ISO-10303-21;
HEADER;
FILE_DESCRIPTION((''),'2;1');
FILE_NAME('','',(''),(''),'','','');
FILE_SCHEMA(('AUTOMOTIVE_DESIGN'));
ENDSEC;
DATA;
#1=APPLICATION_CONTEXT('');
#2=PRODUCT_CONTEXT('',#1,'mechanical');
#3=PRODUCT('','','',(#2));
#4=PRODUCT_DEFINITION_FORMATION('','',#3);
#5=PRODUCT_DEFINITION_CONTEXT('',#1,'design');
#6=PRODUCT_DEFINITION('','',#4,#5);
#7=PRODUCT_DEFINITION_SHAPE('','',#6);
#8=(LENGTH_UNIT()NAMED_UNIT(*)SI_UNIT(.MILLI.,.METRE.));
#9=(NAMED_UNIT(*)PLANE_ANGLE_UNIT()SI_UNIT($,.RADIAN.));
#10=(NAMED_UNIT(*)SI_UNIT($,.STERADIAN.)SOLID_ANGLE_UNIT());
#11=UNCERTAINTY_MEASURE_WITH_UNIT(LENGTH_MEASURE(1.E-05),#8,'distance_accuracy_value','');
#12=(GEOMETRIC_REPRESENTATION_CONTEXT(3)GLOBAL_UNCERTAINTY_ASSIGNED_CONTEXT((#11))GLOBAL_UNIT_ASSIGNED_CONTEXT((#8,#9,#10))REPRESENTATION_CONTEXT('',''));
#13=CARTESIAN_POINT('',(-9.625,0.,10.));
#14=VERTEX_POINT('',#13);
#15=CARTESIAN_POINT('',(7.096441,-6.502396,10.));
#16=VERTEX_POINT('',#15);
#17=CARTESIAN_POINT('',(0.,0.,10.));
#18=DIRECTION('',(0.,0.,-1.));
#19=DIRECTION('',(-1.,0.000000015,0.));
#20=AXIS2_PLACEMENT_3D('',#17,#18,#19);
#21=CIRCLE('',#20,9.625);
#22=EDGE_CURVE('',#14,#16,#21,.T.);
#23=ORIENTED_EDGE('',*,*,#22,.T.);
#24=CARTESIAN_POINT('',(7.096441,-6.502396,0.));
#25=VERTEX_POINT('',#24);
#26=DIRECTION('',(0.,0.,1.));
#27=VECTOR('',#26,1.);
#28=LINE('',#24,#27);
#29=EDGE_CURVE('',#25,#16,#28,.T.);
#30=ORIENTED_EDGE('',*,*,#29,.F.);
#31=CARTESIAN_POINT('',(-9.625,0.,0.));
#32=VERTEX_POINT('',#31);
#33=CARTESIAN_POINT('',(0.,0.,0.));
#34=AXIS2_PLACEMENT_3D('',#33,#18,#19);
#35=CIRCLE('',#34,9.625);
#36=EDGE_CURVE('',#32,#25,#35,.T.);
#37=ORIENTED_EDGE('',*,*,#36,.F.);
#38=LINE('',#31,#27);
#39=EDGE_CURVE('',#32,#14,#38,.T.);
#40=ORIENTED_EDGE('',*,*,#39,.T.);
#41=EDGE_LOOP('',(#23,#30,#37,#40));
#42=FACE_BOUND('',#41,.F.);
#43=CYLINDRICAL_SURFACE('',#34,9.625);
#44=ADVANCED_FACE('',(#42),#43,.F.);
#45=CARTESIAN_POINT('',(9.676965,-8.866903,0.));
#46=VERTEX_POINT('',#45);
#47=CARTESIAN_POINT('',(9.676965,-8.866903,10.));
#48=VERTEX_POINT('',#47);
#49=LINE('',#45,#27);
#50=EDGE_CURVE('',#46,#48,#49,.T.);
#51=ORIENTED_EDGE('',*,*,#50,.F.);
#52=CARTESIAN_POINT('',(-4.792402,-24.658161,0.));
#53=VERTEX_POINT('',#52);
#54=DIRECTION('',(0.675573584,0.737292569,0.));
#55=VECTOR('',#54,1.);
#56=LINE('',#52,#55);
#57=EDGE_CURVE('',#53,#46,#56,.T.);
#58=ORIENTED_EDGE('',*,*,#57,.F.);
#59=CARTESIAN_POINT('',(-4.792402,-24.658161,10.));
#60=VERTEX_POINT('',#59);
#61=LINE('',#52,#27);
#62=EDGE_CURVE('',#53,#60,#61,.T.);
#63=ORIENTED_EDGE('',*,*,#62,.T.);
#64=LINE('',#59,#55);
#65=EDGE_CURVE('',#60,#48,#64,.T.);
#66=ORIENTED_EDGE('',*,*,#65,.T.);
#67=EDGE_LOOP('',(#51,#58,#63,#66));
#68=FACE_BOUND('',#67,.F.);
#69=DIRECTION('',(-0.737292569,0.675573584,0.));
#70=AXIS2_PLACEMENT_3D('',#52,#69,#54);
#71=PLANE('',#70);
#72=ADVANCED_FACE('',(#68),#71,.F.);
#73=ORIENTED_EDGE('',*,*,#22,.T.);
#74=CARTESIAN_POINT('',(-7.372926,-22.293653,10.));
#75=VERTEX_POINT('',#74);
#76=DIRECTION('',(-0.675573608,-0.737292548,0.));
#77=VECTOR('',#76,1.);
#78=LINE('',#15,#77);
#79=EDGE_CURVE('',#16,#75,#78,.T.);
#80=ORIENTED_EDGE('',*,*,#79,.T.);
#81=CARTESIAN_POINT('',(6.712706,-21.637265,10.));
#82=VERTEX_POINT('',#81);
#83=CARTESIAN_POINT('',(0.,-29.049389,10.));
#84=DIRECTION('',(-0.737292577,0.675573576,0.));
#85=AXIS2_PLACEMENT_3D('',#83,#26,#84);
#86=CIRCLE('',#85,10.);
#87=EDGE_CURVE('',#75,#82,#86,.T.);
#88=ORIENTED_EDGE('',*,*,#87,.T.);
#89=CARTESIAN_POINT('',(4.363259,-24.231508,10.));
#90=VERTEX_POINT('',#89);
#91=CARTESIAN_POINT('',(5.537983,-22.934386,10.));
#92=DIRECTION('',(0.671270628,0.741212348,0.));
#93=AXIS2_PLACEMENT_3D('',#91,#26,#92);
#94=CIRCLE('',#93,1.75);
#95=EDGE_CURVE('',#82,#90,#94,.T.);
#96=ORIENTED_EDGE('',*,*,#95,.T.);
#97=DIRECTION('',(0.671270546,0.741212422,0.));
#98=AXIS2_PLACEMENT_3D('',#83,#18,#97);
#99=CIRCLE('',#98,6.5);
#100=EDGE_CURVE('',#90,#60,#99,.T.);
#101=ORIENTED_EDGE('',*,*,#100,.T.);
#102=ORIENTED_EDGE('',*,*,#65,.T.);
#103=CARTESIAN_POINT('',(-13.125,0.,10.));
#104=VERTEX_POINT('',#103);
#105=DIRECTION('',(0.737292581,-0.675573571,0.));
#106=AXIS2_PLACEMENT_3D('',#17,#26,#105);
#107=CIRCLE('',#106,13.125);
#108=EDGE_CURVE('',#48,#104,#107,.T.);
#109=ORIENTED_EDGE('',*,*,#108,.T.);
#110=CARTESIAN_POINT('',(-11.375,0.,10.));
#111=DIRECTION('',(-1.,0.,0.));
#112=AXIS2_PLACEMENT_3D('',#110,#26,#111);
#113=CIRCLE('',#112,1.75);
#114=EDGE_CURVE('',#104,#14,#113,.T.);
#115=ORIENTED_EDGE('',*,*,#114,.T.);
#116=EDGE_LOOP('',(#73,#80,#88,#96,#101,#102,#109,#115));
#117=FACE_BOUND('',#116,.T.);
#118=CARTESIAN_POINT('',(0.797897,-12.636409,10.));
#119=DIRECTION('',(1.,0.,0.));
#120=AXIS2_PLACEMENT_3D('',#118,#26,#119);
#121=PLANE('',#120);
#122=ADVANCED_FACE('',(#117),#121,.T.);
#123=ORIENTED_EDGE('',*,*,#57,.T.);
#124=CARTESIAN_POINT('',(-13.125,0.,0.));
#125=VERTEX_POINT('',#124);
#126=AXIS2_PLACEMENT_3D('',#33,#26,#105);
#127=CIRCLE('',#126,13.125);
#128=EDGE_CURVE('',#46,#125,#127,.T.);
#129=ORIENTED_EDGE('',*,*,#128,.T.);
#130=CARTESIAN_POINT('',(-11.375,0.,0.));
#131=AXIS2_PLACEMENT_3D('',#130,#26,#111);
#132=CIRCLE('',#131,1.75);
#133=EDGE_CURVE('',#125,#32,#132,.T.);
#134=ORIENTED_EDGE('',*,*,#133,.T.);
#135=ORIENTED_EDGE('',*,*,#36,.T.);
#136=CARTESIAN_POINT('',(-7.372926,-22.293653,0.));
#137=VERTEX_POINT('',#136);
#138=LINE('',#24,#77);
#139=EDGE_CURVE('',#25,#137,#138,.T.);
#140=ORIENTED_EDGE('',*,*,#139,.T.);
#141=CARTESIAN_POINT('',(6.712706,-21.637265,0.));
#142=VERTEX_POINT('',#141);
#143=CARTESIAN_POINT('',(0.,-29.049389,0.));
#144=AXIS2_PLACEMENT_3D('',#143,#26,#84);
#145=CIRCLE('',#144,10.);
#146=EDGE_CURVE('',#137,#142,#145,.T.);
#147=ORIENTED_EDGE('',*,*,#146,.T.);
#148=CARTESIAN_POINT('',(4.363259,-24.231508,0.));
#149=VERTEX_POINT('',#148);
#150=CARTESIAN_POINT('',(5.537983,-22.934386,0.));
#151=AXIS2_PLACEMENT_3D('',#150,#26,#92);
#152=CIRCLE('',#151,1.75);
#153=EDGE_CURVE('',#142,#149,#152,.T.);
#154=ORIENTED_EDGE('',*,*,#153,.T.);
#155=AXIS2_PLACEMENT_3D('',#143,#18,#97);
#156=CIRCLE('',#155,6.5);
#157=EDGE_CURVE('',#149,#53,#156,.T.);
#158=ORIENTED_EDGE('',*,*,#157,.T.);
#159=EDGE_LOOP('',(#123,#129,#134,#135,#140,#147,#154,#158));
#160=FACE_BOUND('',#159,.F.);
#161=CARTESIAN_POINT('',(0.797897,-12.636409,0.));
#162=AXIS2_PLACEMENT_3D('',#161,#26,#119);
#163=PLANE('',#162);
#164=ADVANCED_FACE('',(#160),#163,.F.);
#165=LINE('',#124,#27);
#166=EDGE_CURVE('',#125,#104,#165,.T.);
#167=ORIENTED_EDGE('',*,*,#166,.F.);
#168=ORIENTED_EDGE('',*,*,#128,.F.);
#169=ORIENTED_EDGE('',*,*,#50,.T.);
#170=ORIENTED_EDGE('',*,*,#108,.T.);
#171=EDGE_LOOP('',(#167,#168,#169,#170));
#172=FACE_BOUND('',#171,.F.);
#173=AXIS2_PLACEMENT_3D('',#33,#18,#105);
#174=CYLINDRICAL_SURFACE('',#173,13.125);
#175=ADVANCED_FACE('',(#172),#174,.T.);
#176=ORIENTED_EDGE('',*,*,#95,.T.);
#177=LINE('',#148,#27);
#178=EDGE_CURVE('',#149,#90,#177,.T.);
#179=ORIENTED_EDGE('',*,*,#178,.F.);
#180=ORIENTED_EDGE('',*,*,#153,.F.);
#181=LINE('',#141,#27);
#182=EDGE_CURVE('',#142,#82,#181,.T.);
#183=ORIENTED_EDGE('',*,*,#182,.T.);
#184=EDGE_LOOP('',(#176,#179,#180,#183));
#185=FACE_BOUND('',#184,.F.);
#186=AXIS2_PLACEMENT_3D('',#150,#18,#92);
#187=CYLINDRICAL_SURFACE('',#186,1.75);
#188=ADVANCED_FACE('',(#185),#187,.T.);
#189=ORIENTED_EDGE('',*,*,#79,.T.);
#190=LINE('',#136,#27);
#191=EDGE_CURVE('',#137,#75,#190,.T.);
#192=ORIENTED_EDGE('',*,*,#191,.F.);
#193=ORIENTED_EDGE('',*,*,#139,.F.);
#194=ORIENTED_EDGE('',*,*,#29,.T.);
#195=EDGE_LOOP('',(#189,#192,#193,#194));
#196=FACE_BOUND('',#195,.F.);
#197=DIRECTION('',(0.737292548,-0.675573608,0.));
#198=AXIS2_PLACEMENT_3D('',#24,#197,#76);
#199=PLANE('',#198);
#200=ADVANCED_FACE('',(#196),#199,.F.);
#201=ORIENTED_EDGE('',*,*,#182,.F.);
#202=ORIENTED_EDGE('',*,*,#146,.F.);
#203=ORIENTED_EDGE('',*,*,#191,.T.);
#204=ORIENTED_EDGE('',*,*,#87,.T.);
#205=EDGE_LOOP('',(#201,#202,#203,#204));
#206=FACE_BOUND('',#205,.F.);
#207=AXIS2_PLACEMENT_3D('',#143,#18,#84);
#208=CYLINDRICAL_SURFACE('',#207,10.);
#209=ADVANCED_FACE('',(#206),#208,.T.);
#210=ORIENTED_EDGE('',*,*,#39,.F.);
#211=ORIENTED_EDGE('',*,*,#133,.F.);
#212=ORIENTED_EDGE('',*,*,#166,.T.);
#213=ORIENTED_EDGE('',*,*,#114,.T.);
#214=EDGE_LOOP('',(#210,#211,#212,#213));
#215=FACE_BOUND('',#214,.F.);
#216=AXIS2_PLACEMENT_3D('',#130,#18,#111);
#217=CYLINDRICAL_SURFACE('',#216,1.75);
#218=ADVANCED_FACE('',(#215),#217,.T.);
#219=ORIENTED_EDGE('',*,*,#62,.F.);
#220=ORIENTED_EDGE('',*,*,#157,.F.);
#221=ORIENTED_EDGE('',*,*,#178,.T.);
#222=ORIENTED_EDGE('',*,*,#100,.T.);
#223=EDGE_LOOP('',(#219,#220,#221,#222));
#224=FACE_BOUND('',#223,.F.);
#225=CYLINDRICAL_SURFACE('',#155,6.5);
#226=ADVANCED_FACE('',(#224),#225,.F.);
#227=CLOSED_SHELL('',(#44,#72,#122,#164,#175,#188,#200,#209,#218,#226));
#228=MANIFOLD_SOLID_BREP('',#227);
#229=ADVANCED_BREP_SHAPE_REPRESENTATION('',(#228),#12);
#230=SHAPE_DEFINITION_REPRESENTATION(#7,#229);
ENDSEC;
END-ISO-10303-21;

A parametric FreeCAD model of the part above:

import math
import FreeCAD as App
import Part
import Sketcher

V = App.Vector

doc = App.newDocument("Part")
body = doc.addObject("PartDesign::Body", "Body")

sketch1 = doc.addObject("Sketcher::SketchObject", "Sketch")
body.addObject(sketch1)
sketch1.AttachmentSupport = (doc.XY_Plane, [""])
sketch1.MapMode = "FlatFace"
sketch1.addGeometry(Part.ArcOfCircle(Part.Circle(V(0, 0, 0), V(0, 0, 1), 9.625), math.radians(-42.498709), math.radians(179.999999)), False)
sketch1.addGeometry(Part.LineSegment(V(7.096441, -6.502396, 0), V(-7.372926, -22.293653, 0)), False)
sketch1.addGeometry(Part.ArcOfCircle(Part.Circle(V(0, -29.049389, 0), V(0, 0, 1), 10), math.radians(137.501292), math.radians(407.834794)), False)
sketch1.addGeometry(Part.ArcOfCircle(Part.Circle(V(5.537983, -22.934386, 0), V(0, 0, 1), 1.75), math.radians(47.834792), math.radians(227.834792)), False)
sketch1.addGeometry(Part.ArcOfCircle(Part.Circle(V(0, -29.049389, 0), V(0, 0, 1), 6.5), math.radians(137.501298), math.radians(407.834798)), False)
sketch1.addGeometry(Part.LineSegment(V(-4.792402, -24.658161, 0), V(9.676965, -8.866903, 0)), False)
sketch1.addGeometry(Part.ArcOfCircle(Part.Circle(V(0, 0, 0), V(0, 0, 1), 13.125), math.radians(-42.498707), math.radians(180)), False)
sketch1.addGeometry(Part.ArcOfCircle(Part.Circle(V(-11.375, 0, 0), V(0, 0, 1), 1.75), math.radians(180), math.radians(360)), False)
sketch1.addConstraint(Sketcher.Constraint("Tangent", 0, 1, 1, 1))
sketch1.addConstraint(Sketcher.Constraint("Tangent", 1, 2, 2, 1))
sketch1.addConstraint(Sketcher.Constraint("Tangent", 2, 2, 3, 1))
sketch1.addConstraint(Sketcher.Constraint("Tangent", 3, 2, 4, 2))
sketch1.addConstraint(Sketcher.Constraint("Tangent", 4, 1, 5, 1))
sketch1.addConstraint(Sketcher.Constraint("Tangent", 5, 2, 6, 1))
sketch1.addConstraint(Sketcher.Constraint("Tangent", 6, 2, 7, 1))
sketch1.addConstraint(Sketcher.Constraint("Tangent", 7, 2, 0, 2))
sketch1.addConstraint(Sketcher.Constraint("Coincident", 0, 3, -1, 1))
sketch1.addConstraint(Sketcher.Constraint("Coincident", 6, 3, -1, 1))
sketch1.addConstraint(Sketcher.Constraint("Coincident", 4, 3, 2, 3))
sketch1.addConstraint(Sketcher.Constraint("Equal", 3, 7))
sketch1.addConstraint(Sketcher.Constraint("PointOnObject", 2, 3, -2))
sketch1.addConstraint(Sketcher.Constraint("PointOnObject", 7, 3, -1))
sketch1.addConstraint(Sketcher.Constraint("Radius", 2, 10.0))
sketch1.addConstraint(Sketcher.Constraint("Radius", 4, 6.5))
sketch1.addConstraint(Sketcher.Constraint("Radius", 0, 9.625))
sketch1.addConstraint(Sketcher.Constraint("Distance", 1, 21.417899))
sketch1.addConstraint(Sketcher.Constraint("DistanceX", -1, 1, 3, 2, 4.363259))
pad1 = doc.addObject("PartDesign::Pad", "Pad")
body.addObject(pad1)
pad1.Profile = sketch1
pad1.Length = 10

doc.recompute()
